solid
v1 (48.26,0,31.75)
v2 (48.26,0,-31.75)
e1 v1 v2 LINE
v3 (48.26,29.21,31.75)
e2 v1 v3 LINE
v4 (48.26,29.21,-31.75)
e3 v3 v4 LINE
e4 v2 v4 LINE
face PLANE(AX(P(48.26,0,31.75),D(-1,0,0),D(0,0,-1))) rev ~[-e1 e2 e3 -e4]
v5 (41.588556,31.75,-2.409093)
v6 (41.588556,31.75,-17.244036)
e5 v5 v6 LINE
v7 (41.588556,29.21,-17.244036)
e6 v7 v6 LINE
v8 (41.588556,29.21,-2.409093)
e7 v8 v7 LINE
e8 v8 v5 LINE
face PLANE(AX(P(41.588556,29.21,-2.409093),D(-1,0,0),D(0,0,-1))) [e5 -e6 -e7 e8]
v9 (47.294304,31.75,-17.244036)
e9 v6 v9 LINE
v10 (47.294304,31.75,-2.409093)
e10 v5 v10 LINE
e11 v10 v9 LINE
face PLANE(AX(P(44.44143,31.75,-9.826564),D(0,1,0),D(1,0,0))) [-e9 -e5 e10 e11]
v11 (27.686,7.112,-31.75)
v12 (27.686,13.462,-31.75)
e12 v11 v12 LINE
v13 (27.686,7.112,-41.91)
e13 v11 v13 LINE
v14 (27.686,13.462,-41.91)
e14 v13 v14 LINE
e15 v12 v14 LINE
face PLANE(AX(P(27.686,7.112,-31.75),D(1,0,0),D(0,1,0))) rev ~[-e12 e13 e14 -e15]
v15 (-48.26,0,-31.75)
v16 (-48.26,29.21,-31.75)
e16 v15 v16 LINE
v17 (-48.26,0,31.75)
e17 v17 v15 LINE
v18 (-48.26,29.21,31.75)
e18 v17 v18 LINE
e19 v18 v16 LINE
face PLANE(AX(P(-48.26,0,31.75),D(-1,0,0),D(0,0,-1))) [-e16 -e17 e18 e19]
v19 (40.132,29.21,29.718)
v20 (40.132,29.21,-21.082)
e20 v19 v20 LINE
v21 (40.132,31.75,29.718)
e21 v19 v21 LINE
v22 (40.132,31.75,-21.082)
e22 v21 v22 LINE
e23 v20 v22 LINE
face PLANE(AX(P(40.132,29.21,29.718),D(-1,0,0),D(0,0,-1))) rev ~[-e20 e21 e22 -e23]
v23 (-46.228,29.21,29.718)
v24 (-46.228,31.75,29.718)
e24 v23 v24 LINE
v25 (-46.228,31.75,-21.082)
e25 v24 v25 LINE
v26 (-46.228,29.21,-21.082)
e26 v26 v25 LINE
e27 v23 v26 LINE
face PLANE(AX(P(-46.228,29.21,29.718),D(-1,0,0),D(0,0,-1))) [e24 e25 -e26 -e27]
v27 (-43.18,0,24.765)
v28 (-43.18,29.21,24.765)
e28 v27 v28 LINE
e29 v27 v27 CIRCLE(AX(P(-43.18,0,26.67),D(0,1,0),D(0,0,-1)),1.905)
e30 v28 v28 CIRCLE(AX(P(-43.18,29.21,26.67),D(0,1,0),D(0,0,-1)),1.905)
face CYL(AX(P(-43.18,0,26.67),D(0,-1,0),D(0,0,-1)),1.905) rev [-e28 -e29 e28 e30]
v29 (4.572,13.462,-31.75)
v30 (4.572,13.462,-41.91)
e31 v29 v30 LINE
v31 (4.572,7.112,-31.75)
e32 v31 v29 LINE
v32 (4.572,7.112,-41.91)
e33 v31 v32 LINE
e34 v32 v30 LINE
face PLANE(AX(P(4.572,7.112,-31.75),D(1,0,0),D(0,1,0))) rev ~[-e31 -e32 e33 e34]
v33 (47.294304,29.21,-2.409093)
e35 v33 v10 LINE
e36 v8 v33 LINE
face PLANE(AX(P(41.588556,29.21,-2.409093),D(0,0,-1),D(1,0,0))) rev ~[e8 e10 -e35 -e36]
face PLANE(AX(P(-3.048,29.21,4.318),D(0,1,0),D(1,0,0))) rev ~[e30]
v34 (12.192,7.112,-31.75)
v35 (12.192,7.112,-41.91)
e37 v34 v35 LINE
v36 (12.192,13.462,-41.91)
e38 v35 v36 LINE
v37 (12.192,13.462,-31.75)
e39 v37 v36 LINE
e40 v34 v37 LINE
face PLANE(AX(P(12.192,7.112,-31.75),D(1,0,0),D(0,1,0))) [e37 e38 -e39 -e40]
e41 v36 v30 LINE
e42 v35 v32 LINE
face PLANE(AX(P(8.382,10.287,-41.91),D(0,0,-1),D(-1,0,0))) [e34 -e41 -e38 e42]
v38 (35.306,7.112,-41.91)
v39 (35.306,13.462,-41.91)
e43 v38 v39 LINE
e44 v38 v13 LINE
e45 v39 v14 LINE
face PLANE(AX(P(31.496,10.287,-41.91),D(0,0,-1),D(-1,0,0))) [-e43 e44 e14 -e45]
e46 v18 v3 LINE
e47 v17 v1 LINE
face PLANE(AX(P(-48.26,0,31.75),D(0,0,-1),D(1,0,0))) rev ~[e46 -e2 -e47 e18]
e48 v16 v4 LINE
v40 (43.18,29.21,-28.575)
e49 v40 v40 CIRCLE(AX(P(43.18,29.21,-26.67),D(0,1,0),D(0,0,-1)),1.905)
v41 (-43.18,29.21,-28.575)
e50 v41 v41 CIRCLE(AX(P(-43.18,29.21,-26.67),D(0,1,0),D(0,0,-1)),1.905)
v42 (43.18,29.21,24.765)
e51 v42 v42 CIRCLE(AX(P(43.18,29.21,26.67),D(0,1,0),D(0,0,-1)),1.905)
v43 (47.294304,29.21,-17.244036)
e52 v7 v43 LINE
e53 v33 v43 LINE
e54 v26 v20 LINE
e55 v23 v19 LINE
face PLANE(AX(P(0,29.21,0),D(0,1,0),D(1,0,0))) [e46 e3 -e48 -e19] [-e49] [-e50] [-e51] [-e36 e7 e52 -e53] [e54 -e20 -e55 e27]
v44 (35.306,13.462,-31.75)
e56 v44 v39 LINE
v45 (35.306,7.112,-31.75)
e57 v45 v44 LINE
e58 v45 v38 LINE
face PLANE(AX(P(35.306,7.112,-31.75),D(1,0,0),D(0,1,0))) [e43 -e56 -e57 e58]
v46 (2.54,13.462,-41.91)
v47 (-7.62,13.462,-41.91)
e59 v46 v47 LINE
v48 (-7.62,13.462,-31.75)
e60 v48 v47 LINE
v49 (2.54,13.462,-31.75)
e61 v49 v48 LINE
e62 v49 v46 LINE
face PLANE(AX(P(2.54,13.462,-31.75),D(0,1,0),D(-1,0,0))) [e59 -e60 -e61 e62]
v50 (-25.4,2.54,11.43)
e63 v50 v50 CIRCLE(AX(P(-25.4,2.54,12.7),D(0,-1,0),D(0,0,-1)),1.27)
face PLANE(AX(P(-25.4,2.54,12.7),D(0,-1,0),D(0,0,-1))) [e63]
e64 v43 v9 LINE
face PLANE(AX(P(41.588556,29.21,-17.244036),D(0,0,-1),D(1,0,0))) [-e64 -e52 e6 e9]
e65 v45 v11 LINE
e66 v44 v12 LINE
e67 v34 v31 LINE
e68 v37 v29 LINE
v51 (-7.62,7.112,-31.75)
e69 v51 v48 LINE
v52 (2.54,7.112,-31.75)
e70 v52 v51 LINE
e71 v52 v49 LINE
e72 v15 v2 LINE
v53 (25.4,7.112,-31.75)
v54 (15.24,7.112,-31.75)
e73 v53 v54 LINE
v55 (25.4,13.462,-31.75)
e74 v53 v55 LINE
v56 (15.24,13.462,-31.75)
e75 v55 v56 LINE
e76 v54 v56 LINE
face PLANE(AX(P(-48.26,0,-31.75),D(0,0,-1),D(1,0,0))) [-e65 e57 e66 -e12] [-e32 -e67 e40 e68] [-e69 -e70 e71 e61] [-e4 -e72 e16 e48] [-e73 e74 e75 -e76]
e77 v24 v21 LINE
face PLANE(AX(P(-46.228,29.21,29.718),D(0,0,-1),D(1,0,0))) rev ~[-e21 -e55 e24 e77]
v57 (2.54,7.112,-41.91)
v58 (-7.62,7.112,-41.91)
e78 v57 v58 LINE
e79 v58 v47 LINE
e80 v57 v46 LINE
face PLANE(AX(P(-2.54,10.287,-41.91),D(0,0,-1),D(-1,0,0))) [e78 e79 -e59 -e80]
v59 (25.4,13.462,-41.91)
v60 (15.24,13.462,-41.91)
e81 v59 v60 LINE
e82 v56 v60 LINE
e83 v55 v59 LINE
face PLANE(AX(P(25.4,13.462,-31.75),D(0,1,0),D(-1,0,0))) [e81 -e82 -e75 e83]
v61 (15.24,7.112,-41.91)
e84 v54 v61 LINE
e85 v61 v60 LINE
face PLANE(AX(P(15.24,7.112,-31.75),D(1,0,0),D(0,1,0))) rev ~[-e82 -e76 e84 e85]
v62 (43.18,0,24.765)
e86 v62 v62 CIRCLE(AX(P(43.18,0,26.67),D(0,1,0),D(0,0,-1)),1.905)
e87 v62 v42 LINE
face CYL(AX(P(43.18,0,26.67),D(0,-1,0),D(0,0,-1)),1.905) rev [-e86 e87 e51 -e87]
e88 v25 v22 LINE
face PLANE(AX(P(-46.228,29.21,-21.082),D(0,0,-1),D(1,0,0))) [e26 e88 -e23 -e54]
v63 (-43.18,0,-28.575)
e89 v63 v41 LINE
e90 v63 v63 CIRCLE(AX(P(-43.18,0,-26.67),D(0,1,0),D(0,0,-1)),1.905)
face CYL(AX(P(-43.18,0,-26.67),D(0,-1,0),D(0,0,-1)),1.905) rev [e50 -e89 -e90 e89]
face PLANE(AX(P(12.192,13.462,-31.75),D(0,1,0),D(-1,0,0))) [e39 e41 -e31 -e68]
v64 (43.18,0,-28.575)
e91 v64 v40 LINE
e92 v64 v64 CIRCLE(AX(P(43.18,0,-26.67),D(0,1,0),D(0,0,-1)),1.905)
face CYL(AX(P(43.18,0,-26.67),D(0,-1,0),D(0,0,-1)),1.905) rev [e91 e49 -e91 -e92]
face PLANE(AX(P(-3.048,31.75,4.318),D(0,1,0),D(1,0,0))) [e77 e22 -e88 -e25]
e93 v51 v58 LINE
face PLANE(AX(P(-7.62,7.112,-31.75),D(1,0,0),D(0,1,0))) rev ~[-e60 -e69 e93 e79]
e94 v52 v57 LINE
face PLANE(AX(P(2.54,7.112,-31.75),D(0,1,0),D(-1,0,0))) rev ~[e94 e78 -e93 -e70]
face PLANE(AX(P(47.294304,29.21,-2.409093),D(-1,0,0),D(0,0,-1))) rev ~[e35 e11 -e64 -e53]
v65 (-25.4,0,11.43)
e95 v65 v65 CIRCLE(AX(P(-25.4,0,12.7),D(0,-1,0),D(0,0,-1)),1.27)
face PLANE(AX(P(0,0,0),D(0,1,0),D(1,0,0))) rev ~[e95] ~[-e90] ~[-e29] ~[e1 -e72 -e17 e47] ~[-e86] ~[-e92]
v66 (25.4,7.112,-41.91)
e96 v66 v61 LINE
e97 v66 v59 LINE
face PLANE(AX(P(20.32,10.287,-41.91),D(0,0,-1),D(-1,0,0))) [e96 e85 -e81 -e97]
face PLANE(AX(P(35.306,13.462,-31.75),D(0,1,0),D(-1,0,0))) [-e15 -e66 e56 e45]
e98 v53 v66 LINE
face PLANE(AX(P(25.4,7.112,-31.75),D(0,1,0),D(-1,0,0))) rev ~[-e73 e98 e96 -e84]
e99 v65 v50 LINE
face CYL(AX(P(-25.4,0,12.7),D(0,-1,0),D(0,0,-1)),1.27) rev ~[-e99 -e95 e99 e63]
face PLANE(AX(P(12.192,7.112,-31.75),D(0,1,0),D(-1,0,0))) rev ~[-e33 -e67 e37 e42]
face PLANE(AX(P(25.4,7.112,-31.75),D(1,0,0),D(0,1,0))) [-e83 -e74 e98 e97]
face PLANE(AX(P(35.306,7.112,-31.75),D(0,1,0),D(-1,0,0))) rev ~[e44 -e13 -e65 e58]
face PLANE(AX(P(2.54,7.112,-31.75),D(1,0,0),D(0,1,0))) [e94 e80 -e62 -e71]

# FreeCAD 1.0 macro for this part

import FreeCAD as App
import Part
import Sketcher
from FreeCAD import Vector
Q = App.Units.Quantity


def add_polygon(sketch, points):
    """Adds a closed chain of lines whose ends are joined by coincident constraints."""
    first, n = sketch.GeometryCount, len(points)
    for a, b in zip(points, points[1:] + points[:1]):
        sketch.addGeometry(Part.LineSegment(App.Vector(*a, 0), App.Vector(*b, 0)), False)
    for i in range(n):
        sketch.addConstraint(Sketcher.Constraint("Coincident", first + i, 2, first + (i + 1) % n, 1))

doc = App.newDocument("Part")
params = doc.addObject("Spreadsheet::Sheet", "Params")
for row, (alias, value) in enumerate([
    ("sketch1_diameter", "0.15 in"),
    ("sketch1_width", "3.8 in"),
    ("sketch1_height", "2.5 in"),
    ("pad1_length", "1.15 in"),
    ("sketch2_height", "2 in"),
    ("sketch2_width", "3.4 in"),
    ("pad2_length", "0.1 in"),
    ("sketch3_diameter", "0.1 in"),
    ("pocket1_length", "0.1 in"),
    ("sketch4_width", "0.3 in"),
    ("sketch4_width2", "0.4 in"),
    ("sketch4_height", "0.25 in"),
    ("pad3_length", "0.4 in"),
], start=1):
    params.set(f"A{row}", alias)
    params.set(f"B{row}", "=" + value)
    params.setAlias(f"B{row}", alias)

body = doc.addObject("PartDesign::Body", "Body")

# Sketch on XZ plane
sketch1 = body.newObject("Sketcher::SketchObject", "Sketch")
sketch1.AttachmentSupport = (doc.getObject("XZ_Plane"), [""])
sketch1.MapMode = "FlatFace"
add_polygon(sketch1, [(-48.3, -31.8), (-48.3, 31.8), (48.3, 31.8), (48.3, -31.8)])  # lines 0-3
sketch1.addGeometry(Part.Circle(Vector(-43.2, 26.7, 0), Vector(0, 0, 1), 1.9), False)  # 4
sketch1.addGeometry(Part.Circle(Vector(43.2, 26.7, 0), Vector(0, 0, 1), 1.9), False)  # 5
sketch1.addGeometry(Part.Circle(Vector(-43.2, -26.7, 0), Vector(0, 0, 1), 1.9), False)  # 6
sketch1.addGeometry(Part.Circle(Vector(43.2, -26.7, 0), Vector(0, 0, 1), 1.9), False)  # 7
sketch1.addConstraint([
    Sketcher.Constraint("Vertical", 0),
    Sketcher.Constraint("Horizontal", 1),
    Sketcher.Constraint("Vertical", 2),
    Sketcher.Constraint("Horizontal", 3),
    Sketcher.Constraint("Equal", 4, 5),
    Sketcher.Constraint("Equal", 5, 6),
    Sketcher.Constraint("Equal", 6, 7),
    Sketcher.Constraint("Symmetric", 5, 3, 6, 3, -1, 1),
    Sketcher.Constraint("Symmetric", 4, 3, 7, 3, -1, 1),
    Sketcher.Constraint("Symmetric", 0, 2, 2, 2, -1, 1),
    Sketcher.Constraint("Symmetric", 4, 3, 5, 3, -2),
    Sketcher.Constraint("Diameter", 4, Q("0.15 in")),
    Sketcher.Constraint("DistanceX", 1, 1, 1, 2, Q("3.8 in")),
    Sketcher.Constraint("DistanceY", 0, 1, 0, 2, Q("2.5 in")),
    Sketcher.Constraint("DistanceX", 4, 3, -1, 1, Q("1.7 in")),
    Sketcher.Constraint("DistanceY", 6, 3, 4, 3, Q("2.1 in")),
])
sketch1.setExpression("Constraints[15]", "Params.sketch1_diameter")
sketch1.setExpression("Constraints[16]", "Params.sketch1_width")
sketch1.setExpression("Constraints[17]", "Params.sketch1_height")
pad1 = body.newObject("PartDesign::Pad", "Pad")
pad1.Profile = sketch1
pad1.setExpression("Length", "Params.pad1_length")
pad1.Reversed = True

# Sketch on XZ plane
sketch2 = body.newObject("Sketcher::SketchObject", "Sketch001")
sketch2.AttachmentSupport = (doc.getObject("XZ_Plane"), [""])
sketch2.MapMode = "FlatFace"
sketch2.AttachmentOffset = App.Placement(Vector(0, 0, -1.15 * 25.4), App.Rotation())
add_polygon(sketch2, [(-46, -21), (-46, 30), (40, 30), (40, -21)])  # lines 0-3
add_polygon(sketch2, [(42, -17), (42, -2), (47, -2), (47, -17)])  # lines 4-7
sketch2.addConstraint([
    Sketcher.Constraint("Vertical", 0),
    Sketcher.Constraint("Horizontal", 1),
    Sketcher.Constraint("Vertical", 2),
    Sketcher.Constraint("Horizontal", 3),
    Sketcher.Constraint("Vertical", 4),
    Sketcher.Constraint("Horizontal", 5),
    Sketcher.Constraint("Vertical", 6),
    Sketcher.Constraint("Horizontal", 7),
    Sketcher.Constraint("DistanceY", 0, 1, 0, 2, Q("2 in")),
    Sketcher.Constraint("DistanceX", 1, 1, 1, 2, Q("3.4 in")),
    Sketcher.Constraint("DistanceX", 0, 2, -1, 1, Q("1.82 in")),
    Sketcher.Constraint("DistanceY", -1, 1, 0, 2, Q("1.17 in")),
    Sketcher.Constraint("DistanceX", 5, 1, 5, 2, 5.705747),
    Sketcher.Constraint("DistanceY", 4, 1, 4, 2, 14.834942),
    Sketcher.Constraint("DistanceX", -1, 1, 4, 2, 41.588556),
    Sketcher.Constraint("DistanceY", 4, 2, -1, 1, 2.409093),
])
sketch2.setExpression("Constraints[16]", "Params.sketch2_height")
sketch2.setExpression("Constraints[17]", "Params.sketch2_width")
pad2 = body.newObject("PartDesign::Pad", "Pad001")
pad2.Profile = sketch2
pad2.setExpression("Length", "Params.pad2_length")
pad2.Reversed = True

# Sketch on XZ plane
sketch3 = body.newObject("Sketcher::SketchObject", "Sketch002")
sketch3.AttachmentSupport = (doc.getObject("XZ_Plane"), [""])
sketch3.MapMode = "FlatFace"
sketch3.addGeometry(Part.Circle(Vector(-25.4, 12.7, 0), Vector(0, 0, 1), 1.3), False)
sketch3.addConstraint([
    Sketcher.Constraint("Diameter", 0, Q("0.1 in")),
    Sketcher.Constraint("DistanceX", 0, 3, -1, 1, Q("1 in")),
    Sketcher.Constraint("DistanceY", -1, 1, 0, 3, Q("0.5 in")),
])
sketch3.setExpression("Constraints[0]", "Params.sketch3_diameter")
pocket1 = body.newObject("PartDesign::Pocket", "Pocket")
pocket1.Profile = sketch3
pocket1.setExpression("Length", "Params.pocket1_length")

# Sketch on XY plane
sketch4 = body.newObject("Sketcher::SketchObject", "Sketch003")
sketch4.AttachmentSupport = (doc.getObject("XY_Plane"), [""])
sketch4.MapMode = "FlatFace"
sketch4.AttachmentOffset = App.Placement(Vector(0, 0, -1.25 * 25.4), App.Rotation())
add_polygon(sketch4, [(35, 13), (35, 7), (28, 7), (28, 13)])  # lines 0-3
add_polygon(sketch4, [(25, 13), (25, 7), (15, 7), (15, 13)])  # lines 4-7
add_polygon(sketch4, [(12, 13), (12, 7), (5, 7), (5, 13)])  # lines 8-11
add_polygon(sketch4, [(3, 13), (3, 7), (-8, 7), (-8, 13)])  # lines 12-15
sketch4.addConstraint([
    Sketcher.Constraint("Vertical", 0),
    Sketcher.Constraint("Horizontal", 1),
    Sketcher.Constraint("Vertical", 2),
    Sketcher.Constraint("Horizontal", 3),
    Sketcher.Constraint("Vertical", 4),
    Sketcher.Constraint("Horizontal", 5),
    Sketcher.Constraint("Vertical", 6),
    Sketcher.Constraint("Horizontal", 7),
    Sketcher.Constraint("Vertical", 8),
    Sketcher.Constraint("Horizontal", 9),
    Sketcher.Constraint("Vertical", 10),
    Sketcher.Constraint("Horizontal", 11),
    Sketcher.Constraint("Vertical", 12),
    Sketcher.Constraint("Horizontal", 13),
    Sketcher.Constraint("Vertical", 14),
    Sketcher.Constraint("Horizontal", 15),
    Sketcher.Constraint("Horizontal", 1, 2, 4, 2),
    Sketcher.Constraint("Horizontal", 3, 2, 6, 2),
    Sketcher.Constraint("Horizontal", 5, 2, 8, 2),
    Sketcher.Constraint("Horizontal", 7, 2, 10, 2),
    Sketcher.Constraint("Horizontal", 9, 2, 12, 2),
    Sketcher.Constraint("Horizontal", 11, 2, 14, 2),
    Sketcher.Constraint("Equal", 3, 9),
    Sketcher.Constraint("Equal", 7, 13),
    Sketcher.Constraint("DistanceX", 1, 2, 1, 1, Q("0.3 in")),
    Sketcher.Constraint("DistanceX", 5, 2, 5, 1, Q("0.4 in")),
    Sketcher.Constraint("DistanceX", -1, 1, 4, 2, Q("1 in")),
    Sketcher.Constraint("DistanceY", 0, 2, 0, 1, Q("0.25 in")),
    Sketcher.Constraint("DistanceX", -1, 1, 12, 2, Q("0.1 in")),
    Sketcher.Constraint("DistanceX", -1, 1, 0, 2, Q("1.39 in")),
    Sketcher.Constraint("DistanceY", -1, 1, 0, 2, Q("0.28 in")),
    Sketcher.Constraint("DistanceX", -1, 1, 8, 2, Q("0.48 in")),
])
sketch4.setExpression("Constraints[40]", "Params.sketch4_width")
sketch4.setExpression("Constraints[41]", "Params.sketch4_width2")
sketch4.setExpression("Constraints[43]", "Params.sketch4_height")
pad3 = body.newObject("PartDesign::Pad", "Pad002")
pad3.Profile = sketch4
pad3.setExpression("Length", "Params.pad3_length")
pad3.Reversed = True

doc.recompute()
